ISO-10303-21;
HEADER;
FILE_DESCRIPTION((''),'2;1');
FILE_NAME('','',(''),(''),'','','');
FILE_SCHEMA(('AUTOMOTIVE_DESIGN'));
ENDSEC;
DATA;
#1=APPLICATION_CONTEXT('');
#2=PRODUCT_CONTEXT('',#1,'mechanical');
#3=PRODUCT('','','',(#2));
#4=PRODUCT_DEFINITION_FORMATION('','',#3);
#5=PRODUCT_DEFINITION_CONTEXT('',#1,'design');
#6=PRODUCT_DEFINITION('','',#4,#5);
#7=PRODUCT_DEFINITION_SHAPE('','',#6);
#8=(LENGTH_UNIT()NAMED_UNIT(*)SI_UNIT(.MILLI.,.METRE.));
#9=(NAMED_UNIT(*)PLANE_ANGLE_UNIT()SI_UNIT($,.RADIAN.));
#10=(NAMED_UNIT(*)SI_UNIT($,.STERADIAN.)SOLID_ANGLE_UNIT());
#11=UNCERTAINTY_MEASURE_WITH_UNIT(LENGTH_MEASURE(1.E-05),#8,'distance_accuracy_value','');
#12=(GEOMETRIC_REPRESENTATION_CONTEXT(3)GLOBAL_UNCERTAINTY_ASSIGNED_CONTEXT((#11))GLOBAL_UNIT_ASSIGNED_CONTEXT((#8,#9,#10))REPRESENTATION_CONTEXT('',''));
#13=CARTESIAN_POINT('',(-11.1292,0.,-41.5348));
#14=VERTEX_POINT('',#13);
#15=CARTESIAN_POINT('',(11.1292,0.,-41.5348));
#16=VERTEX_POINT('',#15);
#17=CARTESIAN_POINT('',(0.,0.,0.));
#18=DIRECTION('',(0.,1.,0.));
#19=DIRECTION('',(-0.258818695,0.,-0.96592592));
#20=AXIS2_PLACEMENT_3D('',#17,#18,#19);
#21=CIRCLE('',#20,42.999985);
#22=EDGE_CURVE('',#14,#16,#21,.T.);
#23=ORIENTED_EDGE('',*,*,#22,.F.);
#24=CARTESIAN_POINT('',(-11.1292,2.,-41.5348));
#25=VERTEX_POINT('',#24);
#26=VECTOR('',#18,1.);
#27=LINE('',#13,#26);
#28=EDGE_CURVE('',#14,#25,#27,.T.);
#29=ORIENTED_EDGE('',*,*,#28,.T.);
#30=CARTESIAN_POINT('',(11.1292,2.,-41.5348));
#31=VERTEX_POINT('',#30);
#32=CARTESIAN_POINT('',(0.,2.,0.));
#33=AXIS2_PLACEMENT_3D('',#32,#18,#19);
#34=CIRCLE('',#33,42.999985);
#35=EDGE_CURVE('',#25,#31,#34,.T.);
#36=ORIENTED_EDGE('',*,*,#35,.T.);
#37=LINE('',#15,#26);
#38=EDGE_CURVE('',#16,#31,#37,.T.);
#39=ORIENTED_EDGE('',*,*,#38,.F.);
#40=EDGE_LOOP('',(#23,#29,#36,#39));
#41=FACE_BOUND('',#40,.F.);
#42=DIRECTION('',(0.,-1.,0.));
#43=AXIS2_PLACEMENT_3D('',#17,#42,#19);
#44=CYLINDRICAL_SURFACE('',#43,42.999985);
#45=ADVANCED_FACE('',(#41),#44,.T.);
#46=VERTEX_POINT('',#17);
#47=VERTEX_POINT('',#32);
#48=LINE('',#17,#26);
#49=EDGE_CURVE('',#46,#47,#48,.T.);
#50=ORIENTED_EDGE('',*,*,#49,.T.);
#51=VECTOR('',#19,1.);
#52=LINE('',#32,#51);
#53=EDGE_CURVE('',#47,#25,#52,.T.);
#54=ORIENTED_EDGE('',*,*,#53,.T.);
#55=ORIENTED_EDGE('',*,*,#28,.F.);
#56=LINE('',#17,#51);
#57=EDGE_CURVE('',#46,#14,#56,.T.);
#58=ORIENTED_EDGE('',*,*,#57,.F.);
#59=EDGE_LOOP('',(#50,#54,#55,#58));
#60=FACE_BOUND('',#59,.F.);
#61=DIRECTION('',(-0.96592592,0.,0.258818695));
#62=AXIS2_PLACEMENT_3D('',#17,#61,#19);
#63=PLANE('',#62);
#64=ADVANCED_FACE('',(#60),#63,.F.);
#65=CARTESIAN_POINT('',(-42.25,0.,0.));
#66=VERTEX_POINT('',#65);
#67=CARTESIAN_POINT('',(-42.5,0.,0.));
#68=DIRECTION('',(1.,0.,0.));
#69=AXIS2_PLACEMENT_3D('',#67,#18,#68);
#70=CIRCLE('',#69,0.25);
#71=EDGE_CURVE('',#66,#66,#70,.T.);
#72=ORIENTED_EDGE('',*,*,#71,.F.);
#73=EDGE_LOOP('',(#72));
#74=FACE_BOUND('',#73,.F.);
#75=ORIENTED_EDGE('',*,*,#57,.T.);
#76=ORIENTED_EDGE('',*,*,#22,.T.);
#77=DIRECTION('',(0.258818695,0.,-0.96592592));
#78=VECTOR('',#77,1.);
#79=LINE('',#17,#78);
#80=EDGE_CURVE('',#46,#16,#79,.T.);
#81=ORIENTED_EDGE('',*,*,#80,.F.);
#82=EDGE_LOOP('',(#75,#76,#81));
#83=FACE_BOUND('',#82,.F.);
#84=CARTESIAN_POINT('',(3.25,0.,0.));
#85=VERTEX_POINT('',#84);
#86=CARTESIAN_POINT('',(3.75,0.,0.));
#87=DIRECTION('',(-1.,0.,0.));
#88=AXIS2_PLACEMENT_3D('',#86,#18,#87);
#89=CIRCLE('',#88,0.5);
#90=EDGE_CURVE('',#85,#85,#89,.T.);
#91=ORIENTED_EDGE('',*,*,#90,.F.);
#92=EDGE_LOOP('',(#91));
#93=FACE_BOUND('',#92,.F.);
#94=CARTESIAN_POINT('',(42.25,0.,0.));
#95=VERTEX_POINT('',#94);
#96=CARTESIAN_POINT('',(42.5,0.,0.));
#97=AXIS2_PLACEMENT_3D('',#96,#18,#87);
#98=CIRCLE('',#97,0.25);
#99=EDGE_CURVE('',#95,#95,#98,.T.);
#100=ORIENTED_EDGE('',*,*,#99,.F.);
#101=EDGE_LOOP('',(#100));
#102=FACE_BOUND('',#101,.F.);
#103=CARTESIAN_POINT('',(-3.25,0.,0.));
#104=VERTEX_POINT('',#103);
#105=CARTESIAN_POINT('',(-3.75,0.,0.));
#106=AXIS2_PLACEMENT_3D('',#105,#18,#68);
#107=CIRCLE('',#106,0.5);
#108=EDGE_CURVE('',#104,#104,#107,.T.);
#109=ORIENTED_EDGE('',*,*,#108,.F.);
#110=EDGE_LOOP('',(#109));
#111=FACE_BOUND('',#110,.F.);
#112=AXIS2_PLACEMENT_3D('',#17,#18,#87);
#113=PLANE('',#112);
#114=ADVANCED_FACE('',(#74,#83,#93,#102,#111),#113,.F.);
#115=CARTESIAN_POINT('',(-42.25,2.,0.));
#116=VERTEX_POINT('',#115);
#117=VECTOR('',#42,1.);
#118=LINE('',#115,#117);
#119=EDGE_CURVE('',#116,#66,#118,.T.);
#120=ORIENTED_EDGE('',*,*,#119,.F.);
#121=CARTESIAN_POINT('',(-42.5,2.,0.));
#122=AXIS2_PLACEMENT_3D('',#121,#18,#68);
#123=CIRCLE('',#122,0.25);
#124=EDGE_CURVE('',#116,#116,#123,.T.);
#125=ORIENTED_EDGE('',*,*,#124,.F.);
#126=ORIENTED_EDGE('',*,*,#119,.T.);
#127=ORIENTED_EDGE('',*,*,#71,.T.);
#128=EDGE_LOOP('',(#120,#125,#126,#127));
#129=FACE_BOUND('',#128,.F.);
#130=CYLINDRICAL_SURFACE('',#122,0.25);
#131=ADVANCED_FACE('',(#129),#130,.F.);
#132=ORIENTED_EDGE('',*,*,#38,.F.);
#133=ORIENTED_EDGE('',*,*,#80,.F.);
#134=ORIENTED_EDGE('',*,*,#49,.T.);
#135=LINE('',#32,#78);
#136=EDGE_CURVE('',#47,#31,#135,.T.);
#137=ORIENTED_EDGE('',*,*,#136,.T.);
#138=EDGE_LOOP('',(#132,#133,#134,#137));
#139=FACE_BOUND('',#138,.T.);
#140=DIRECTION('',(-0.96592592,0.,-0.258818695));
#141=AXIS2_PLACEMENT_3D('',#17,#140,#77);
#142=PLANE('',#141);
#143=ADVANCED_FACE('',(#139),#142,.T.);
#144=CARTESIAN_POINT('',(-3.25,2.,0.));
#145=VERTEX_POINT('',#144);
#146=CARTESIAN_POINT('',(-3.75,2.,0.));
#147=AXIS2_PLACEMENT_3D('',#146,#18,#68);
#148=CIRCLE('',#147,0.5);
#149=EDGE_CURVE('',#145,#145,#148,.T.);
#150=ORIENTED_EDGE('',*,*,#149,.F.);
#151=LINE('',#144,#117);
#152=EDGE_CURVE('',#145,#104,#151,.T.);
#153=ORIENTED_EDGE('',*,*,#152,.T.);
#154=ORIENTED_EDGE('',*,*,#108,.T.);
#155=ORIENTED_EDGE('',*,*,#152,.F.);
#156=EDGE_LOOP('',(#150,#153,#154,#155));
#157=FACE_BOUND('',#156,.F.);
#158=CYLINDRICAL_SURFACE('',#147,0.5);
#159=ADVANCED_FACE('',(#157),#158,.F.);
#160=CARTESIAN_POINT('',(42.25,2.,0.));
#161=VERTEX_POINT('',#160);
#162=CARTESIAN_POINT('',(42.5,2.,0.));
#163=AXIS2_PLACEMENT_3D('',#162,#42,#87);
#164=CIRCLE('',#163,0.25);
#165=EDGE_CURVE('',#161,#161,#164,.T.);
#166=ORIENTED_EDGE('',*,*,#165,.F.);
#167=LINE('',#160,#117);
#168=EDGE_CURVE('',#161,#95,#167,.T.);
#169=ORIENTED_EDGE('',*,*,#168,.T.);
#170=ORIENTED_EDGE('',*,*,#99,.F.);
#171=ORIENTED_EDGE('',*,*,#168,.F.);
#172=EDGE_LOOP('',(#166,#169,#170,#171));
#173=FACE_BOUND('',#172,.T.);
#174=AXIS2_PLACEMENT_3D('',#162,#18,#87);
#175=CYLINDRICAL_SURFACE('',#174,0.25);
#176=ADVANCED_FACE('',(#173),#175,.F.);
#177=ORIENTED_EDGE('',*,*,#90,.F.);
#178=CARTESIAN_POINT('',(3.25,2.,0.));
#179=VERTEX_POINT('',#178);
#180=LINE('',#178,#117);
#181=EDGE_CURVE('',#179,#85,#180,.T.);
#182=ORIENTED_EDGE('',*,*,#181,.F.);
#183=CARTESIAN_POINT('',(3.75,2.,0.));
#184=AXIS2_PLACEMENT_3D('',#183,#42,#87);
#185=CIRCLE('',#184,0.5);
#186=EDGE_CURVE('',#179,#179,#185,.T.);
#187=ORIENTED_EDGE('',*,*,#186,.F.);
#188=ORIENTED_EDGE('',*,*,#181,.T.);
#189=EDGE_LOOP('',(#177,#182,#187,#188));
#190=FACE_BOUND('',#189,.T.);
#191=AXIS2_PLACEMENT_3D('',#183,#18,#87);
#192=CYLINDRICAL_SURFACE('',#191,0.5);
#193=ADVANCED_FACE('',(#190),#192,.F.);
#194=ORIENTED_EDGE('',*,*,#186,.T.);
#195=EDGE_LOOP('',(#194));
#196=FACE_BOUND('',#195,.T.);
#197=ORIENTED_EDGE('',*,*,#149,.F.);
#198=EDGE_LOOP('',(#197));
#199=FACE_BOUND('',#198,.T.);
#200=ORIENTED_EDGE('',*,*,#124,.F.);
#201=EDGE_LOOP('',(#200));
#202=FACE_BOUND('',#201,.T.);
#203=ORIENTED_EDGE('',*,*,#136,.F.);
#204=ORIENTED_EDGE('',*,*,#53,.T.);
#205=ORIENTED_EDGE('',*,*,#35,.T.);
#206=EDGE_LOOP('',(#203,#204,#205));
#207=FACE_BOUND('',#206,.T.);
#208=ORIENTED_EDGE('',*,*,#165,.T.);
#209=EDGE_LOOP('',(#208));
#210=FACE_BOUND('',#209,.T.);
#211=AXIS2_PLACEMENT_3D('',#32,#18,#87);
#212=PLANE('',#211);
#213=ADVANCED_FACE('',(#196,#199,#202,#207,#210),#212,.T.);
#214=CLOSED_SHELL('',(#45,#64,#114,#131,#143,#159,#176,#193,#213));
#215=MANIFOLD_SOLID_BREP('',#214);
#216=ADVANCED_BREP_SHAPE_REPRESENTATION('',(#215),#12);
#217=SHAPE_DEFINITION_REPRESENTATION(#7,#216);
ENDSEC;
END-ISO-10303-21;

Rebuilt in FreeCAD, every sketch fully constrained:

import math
import FreeCAD as App
import Part
import Sketcher

V = App.Vector
Q = App.Units.Quantity

doc = App.newDocument("Part")
body = doc.addObject("PartDesign::Body", "Body")

sketch1 = doc.addObject("Sketcher::SketchObject", "Sketch")
body.addObject(sketch1)
sketch1.AttachmentSupport = (doc.XZ_Plane, [""])
sketch1.MapMode = "FlatFace"
sketch1.addGeometry([
    Part.LineSegment(V(0, 0, 0), V(-11, -42, 0)),
    Part.ArcOfCircle(Part.Circle(V(0, 0, 0), V(0, 0, 1), 43), math.radians(-75), math.radians(255)),
    Part.LineSegment(V(11, -42, 0), V(0, 0, 0)),
], False)
sketch1.addConstraint([
    Sketcher.Constraint("Coincident", 0, 2, 1, 2),
    Sketcher.Constraint("Coincident", 1, 1, 2, 1),
    Sketcher.Constraint("Coincident", 2, 2, 0, 1),
    Sketcher.Constraint("Coincident", 1, 3, -1, 1),
    Sketcher.Constraint("Coincident", 2, 2, -1, 1),
    Sketcher.Constraint("Horizontal", 0, 2, 1, 1),
    Sketcher.Constraint("Radius", 1, 43.0),
    Sketcher.Constraint("Angle", 0, Q("-105 deg")),
])
pad1 = doc.addObject("PartDesign::Pad", "Pad")
body.addObject(pad1)
pad1.Profile = sketch1
pad1.Length = 2
pad1.Reversed = True

sketch2 = doc.addObject("Sketcher::SketchObject", "Sketch001")
body.addObject(sketch2)
sketch2.AttachmentSupport = (doc.XZ_Plane, [""])
sketch2.MapMode = "FlatFace"
sketch2.AttachmentOffset = App.Placement(V(0, 0, -2), App.Rotation())
sketch2.addGeometry(Part.Circle(V(-42.5, 0, 0), V(0, 0, 1), 0.25), False)
sketch2.addConstraint([
    Sketcher.Constraint("PointOnObject", 0, 3, -1),
    Sketcher.Constraint("Diameter", 0, 0.5),
    Sketcher.Constraint("DistanceX", 0, 3, -1, 1, 42.5),
])
pocket1 = doc.addObject("PartDesign::Pocket", "Pocket")
body.addObject(pocket1)
pocket1.Profile = sketch2
pocket1.Type = "ThroughAll"
pocket1.Reversed = True
doc.recompute()

mirrored = doc.addObject("PartDesign::Mirrored", "Mirrored")
body.addObject(mirrored)
mirrored.Originals = [pocket1]
mirrored.MirrorPlane = (doc.YZ_Plane, [""])
body.Tip = mirrored

sketch3 = doc.addObject("Sketcher::SketchObject", "Sketch002")
body.addObject(sketch3)
sketch3.AttachmentSupport = (doc.XZ_Plane, [""])
sketch3.MapMode = "FlatFace"
sketch3.AttachmentOffset = App.Placement(V(0, 0, -2), App.Rotation())
sketch3.addGeometry(Part.Circle(V(-3.8, 0, 0), V(0, 0, 1), 0.5), False)
sketch3.addConstraint([
    Sketcher.Constraint("PointOnObject", 0, 3, -1),
    Sketcher.Constraint("Diameter", 0, 1.0),
    Sketcher.Constraint("DistanceX", 0, 3, -1, 1, 3.75),
])
pocket2 = doc.addObject("PartDesign::Pocket", "Pocket001")
body.addObject(pocket2)
pocket2.Profile = sketch3
pocket2.Type = "ThroughAll"
pocket2.Reversed = True
doc.recompute()

mirrored2 = doc.addObject("PartDesign::Mirrored", "Mirrored001")
body.addObject(mirrored2)
mirrored2.Originals = [pocket2]
mirrored2.MirrorPlane = (doc.YZ_Plane, [""])
body.Tip = mirrored2

doc.recompute()
